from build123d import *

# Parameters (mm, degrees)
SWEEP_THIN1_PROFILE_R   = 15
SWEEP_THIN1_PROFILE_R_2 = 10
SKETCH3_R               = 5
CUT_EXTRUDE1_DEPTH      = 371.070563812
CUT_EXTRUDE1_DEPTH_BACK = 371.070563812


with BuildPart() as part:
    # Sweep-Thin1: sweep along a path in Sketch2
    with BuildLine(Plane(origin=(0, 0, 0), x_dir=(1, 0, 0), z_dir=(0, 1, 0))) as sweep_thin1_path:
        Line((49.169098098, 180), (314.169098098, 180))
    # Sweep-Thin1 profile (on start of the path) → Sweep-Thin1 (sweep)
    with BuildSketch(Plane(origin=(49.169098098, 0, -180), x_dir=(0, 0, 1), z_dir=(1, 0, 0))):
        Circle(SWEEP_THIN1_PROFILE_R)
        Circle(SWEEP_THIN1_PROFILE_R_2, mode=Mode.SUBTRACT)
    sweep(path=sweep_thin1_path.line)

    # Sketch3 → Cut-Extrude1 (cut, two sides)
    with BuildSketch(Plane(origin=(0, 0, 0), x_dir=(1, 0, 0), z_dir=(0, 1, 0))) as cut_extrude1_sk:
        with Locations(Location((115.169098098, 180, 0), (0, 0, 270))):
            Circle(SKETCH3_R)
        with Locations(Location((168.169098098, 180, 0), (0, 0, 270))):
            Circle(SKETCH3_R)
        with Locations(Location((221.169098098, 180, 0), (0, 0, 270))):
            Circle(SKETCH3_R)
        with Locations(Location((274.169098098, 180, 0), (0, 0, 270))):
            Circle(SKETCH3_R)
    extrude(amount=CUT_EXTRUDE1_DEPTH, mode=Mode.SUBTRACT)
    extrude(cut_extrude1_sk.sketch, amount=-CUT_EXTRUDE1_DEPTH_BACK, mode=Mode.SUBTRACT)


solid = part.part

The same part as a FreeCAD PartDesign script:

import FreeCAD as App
import Part
import Sketcher
from FreeCAD import Vector

doc = App.newDocument("Part")
body = doc.addObject("PartDesign::Body", "Body")

# Sketch on YZ plane
sketch1 = doc.addObject("Sketcher::SketchObject", "Sketch")
body.addObject(sketch1)
sketch1.AttachmentSupport = (doc.YZ_Plane, [""])
sketch1.MapMode = "FlatFace"
sketch1.AttachmentOffset = App.Placement(Vector(0, 0, 49.169098), App.Rotation())
sketch1.addGeometry([
    Part.Circle(Vector(0, -180, 0), Vector(0, 0, 1), 15),
    Part.Circle(Vector(0, -180, 0), Vector(0, 0, 1), 10),
], False)
sketch1.addConstraint([
    Sketcher.Constraint("Coincident", 1, 3, 0, 3),
    Sketcher.Constraint("PointOnObject", 0, 3, -2),
    Sketcher.Constraint("Diameter", 0, 30.0),
    Sketcher.Constraint("Diameter", 1, 20.0),
    Sketcher.Constraint("DistanceY", 0, 3, -1, 1, 180.0),
])

# Sketch on XY plane
sketch2 = doc.addObject("Sketcher::SketchObject", "Sketch001")
body.addObject(sketch2)
sketch2.AttachmentSupport = (doc.XY_Plane, [""])
sketch2.MapMode = "FlatFace"
sketch2.AttachmentOffset = App.Placement(Vector(0, 0, -180), App.Rotation())
sketch2.addGeometry(Part.LineSegment(Vector(49, 0, 0), Vector(314, 0, 0)), False)
sketch2.addConstraint([
    Sketcher.Constraint("Horizontal", 0),
    Sketcher.Constraint("PointOnObject", 0, 1, -1),
    Sketcher.Constraint("DistanceX", 0, 1, 0, 2, 265.0),
    Sketcher.Constraint("DistanceX", -1, 1, 0, 1, 49.169098),
])
doc.recompute()

additivepipe = doc.addObject("PartDesign::AdditivePipe", "AdditivePipe")
body.addObject(additivepipe)
additivepipe.Profile = sketch1
additivepipe.Spine = (sketch2, ["Edge1"])

# Sketch on XZ plane
sketch3 = doc.addObject("Sketcher::SketchObject", "Sketch002")
body.addObject(sketch3)
sketch3.AttachmentSupport = (doc.XZ_Plane, [""])
sketch3.MapMode = "FlatFace"
sketch3.addGeometry([
    Part.Circle(Vector(115, -180, 0), Vector(0, 0, 1), 5),
    Part.Circle(Vector(168, -180, 0), Vector(0, 0, 1), 5),
    Part.Circle(Vector(221, -180, 0), Vector(0, 0, 1), 5),
    Part.Circle(Vector(274, -180, 0), Vector(0, 0, 1), 5),
], False)
sketch3.addConstraint([
    Sketcher.Constraint("Equal", 0, 1),
    Sketcher.Constraint("Equal", 1, 2),
    Sketcher.Constraint("Equal", 2, 3),
    Sketcher.Constraint("Horizontal", 0, 3, 1, 3),
    Sketcher.Constraint("Horizontal", 1, 3, 2, 3),
    Sketcher.Constraint("Horizontal", 2, 3, 3, 3),
    Sketcher.Constraint("Diameter", 0, 10.0),
    Sketcher.Constraint("DistanceY", 0, 3, -1, 1, 180.0),
    Sketcher.Constraint("DistanceX", 0, 3, 1, 3, 53.0),
    Sketcher.Constraint("DistanceX", 1, 3, 2, 3, 53.0),
    Sketcher.Constraint("DistanceX", 2, 3, 3, 3, 53.0),
    Sketcher.Constraint("DistanceX", -1, 1, 0, 3, 115.169098),
])
pocket1 = doc.addObject("PartDesign::Pocket", "Pocket")
body.addObject(pocket1)
pocket1.Profile = sketch3
pocket1.Type = "ThroughAll"
pocket1.Midplane = True

doc.recompute()
